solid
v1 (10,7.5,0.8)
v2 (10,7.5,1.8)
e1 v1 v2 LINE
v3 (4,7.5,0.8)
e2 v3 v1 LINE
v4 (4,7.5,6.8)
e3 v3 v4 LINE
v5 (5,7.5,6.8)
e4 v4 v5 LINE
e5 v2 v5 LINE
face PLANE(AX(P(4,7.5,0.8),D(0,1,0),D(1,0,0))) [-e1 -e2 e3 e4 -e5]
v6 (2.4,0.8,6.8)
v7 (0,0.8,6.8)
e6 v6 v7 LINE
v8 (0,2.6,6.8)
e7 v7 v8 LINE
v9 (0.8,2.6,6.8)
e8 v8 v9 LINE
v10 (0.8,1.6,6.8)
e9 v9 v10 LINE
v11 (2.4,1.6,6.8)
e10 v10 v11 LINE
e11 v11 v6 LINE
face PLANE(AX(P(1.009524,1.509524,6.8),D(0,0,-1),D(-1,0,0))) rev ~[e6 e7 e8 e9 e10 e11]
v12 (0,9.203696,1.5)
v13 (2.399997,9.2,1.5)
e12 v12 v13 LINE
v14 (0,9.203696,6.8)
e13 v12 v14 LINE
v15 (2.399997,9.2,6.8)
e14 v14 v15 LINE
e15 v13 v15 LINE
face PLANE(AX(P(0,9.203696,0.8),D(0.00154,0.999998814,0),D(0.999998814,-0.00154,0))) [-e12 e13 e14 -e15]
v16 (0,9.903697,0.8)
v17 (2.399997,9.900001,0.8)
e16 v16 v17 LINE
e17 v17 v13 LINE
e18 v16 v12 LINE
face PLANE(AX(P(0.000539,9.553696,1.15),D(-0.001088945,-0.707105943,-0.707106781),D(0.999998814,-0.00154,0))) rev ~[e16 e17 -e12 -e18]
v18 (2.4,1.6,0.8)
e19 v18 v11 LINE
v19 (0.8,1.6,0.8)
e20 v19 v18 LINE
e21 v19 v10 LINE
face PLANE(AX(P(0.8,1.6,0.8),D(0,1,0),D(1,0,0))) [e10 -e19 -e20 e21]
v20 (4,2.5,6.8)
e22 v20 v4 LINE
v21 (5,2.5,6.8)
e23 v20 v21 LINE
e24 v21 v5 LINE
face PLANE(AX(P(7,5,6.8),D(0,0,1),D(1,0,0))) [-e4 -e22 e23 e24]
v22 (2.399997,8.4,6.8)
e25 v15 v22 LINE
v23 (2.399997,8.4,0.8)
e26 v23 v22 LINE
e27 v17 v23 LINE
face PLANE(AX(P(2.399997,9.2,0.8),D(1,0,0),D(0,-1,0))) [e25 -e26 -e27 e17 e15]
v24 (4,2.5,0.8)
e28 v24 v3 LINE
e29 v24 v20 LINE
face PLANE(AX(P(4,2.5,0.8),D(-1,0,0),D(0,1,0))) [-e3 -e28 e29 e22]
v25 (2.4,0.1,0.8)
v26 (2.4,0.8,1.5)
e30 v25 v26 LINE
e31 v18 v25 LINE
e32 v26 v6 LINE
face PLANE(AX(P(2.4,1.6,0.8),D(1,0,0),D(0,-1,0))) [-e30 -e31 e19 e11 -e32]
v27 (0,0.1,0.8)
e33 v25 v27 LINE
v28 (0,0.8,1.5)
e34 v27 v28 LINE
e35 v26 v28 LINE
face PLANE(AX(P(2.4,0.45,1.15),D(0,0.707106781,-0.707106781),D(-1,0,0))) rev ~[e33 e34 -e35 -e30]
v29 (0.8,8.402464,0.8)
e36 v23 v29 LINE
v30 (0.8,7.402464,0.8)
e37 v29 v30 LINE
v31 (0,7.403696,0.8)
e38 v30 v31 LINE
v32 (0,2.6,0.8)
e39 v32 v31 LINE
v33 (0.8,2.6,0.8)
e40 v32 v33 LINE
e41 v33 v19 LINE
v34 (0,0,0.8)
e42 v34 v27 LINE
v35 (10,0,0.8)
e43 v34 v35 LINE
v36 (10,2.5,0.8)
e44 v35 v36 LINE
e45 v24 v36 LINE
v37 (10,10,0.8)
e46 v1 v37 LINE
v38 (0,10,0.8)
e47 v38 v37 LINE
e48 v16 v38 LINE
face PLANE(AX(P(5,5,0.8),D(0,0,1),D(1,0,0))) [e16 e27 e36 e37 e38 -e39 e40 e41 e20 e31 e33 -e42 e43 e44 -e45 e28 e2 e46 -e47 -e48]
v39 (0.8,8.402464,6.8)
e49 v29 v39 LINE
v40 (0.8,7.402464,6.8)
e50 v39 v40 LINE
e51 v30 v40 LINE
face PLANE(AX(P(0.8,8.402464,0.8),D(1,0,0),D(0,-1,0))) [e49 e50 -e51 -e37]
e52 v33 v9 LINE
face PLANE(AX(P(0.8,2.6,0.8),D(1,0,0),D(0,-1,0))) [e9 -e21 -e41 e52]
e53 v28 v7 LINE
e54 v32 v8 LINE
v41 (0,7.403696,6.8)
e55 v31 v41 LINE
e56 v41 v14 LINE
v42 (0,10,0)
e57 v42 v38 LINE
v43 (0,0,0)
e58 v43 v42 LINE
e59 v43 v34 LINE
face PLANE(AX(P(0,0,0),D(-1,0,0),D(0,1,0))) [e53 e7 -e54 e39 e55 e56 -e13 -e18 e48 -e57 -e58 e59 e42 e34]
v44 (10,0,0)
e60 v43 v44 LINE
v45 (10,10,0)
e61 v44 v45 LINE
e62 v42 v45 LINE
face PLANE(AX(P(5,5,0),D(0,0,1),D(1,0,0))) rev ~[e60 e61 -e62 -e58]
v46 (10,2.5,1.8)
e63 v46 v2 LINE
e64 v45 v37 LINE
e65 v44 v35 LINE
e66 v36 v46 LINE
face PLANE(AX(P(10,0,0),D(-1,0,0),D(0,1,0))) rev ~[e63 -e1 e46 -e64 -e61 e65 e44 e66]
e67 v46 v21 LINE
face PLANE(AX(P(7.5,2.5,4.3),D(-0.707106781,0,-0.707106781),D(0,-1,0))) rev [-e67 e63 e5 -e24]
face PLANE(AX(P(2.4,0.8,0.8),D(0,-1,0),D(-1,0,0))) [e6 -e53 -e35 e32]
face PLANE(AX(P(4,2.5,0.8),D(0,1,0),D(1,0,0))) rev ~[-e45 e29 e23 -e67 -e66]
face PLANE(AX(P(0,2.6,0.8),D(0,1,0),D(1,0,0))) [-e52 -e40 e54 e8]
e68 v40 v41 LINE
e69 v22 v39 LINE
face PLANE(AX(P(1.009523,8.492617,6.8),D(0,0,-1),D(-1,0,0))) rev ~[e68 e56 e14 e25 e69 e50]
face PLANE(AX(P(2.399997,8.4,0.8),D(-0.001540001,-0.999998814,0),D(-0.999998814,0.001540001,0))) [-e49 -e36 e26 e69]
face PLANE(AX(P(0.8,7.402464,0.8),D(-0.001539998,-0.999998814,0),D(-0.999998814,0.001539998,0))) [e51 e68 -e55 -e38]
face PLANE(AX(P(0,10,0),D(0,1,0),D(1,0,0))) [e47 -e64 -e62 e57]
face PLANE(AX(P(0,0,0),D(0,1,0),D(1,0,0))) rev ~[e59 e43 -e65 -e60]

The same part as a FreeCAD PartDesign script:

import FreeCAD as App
import Part
import Sketcher
Q = App.Units.Quantity


def edges_at(feature, points):
    """Names of the edges that pass closest to the given points."""
    edges = feature.Shape.Edges
    near = lambda p: min(range(len(edges)), key=lambda i: edges[i].distToShape(Part.Vertex(*p))[0])
    return sorted({f"Edge{near(p) + 1}" for p in points})


def add_polygon(sketch, points):
    """Adds a closed chain of lines whose ends are joined by coincident constraints."""
    first, n = sketch.GeometryCount, len(points)
    for a, b in zip(points, points[1:] + points[:1]):
        sketch.addGeometry(Part.LineSegment(App.Vector(*a, 0), App.Vector(*b, 0)), False)
    for i in range(n):
        sketch.addConstraint(Sketcher.Constraint("Coincident", first + i, 2, first + (i + 1) % n, 1))

doc = App.newDocument("Part")
params = doc.addObject("Spreadsheet::Sheet", "Params")
for row, (alias, value) in enumerate([
    ("sketch1_width", "10 mm"),
    ("pad1_length", "0.8 mm"),
    ("sketch2_width", "6 mm"),
    ("sketch2_height", "5 mm"),
    ("sketch2_height2", "1 mm"),
    ("sketch2_width2", "2.4 mm"),
    ("sketch2_width3", "1.6 mm"),
    ("pad2_length", "6 mm"),
    ("chamfer_size", "5 mm"),
    ("chamfer2_size", "0.7 mm"),
], start=1):
    params.set(f"A{row}", alias)
    params.set(f"B{row}", "=" + value)
    params.setAlias(f"B{row}", alias)

body = doc.addObject("PartDesign::Body", "Body")

# Sketch on XY plane
sketch1 = doc.addObject("Sketcher::SketchObject", "Sketch")
body.addObject(sketch1)
sketch1.AttachmentSupport = (doc.XY_Plane, [""])
sketch1.MapMode = "FlatFace"
add_polygon(sketch1, [(0, 10), (0, 0), (10, 0), (10, 10)])  # lines 0-3
sketch1.addConstraint(Sketcher.Constraint("Vertical", 0))
sketch1.addConstraint(Sketcher.Constraint("Horizontal", 1))
sketch1.addConstraint(Sketcher.Constraint("Vertical", 2))
sketch1.addConstraint(Sketcher.Constraint("Horizontal", 3))
sketch1.addConstraint(Sketcher.Constraint("Coincident", 0, 2, -1, 1))
sketch1.addConstraint(Sketcher.Constraint("Equal", 3, 0))
sketch1.addConstraint(Sketcher.Constraint("DistanceX", 1, 1, 1, 2, Q("10 mm")))
sketch1.setExpression("Constraints[10]", "Params.sketch1_width")
pad1 = doc.addObject("PartDesign::Pad", "Pad")
body.addObject(pad1)
pad1.Profile = sketch1
pad1.setExpression("Length", "Params.pad1_length")

# Sketch on XY plane
sketch2 = doc.addObject("Sketcher::SketchObject", "Sketch001")
body.addObject(sketch2)
sketch2.AttachmentSupport = (doc.XY_Plane, [""])
sketch2.MapMode = "FlatFace"
sketch2.AttachmentOffset = App.Placement(App.Vector(0, 0, 0.8), App.Rotation())
add_polygon(sketch2, [(4, 7.5), (4, 2.5), (10, 2.5), (10, 7.5)])  # lines 0-3
add_polygon(sketch2, [(0, 2.6), (0, 0.8), (2.4, 0.8), (2.4, 1.6), (0.8, 1.6), (0.8, 2.6)])  # lines 4-9
add_polygon(sketch2, [(0, 9.2), (0, 7.4), (0.8, 7.4), (0.8, 8.4), (2.4, 8.4), (2.4, 9.2)])  # lines 10-15
sketch2.addConstraint(Sketcher.Constraint("Vertical", 0))
sketch2.addConstraint(Sketcher.Constraint("Horizontal", 1))
sketch2.addConstraint(Sketcher.Constraint("Vertical", 2))
sketch2.addConstraint(Sketcher.Constraint("Horizontal", 3))
sketch2.addConstraint(Sketcher.Constraint("Vertical", 4))
sketch2.addConstraint(Sketcher.Constraint("Horizontal", 5))
sketch2.addConstraint(Sketcher.Constraint("Vertical", 6))
sketch2.addConstraint(Sketcher.Constraint("Horizontal", 7))
sketch2.addConstraint(Sketcher.Constraint("Vertical", 8))
sketch2.addConstraint(Sketcher.Constraint("Horizontal", 9))
sketch2.addConstraint(Sketcher.Constraint("Vertical", 10))
sketch2.addConstraint(Sketcher.Constraint("Vertical", 12))
sketch2.addConstraint(Sketcher.Constraint("Vertical", 14))
sketch2.addConstraint(Sketcher.Constraint("PointOnObject", 4, 2, -2))
sketch2.addConstraint(Sketcher.Constraint("PointOnObject", 10, 2, -2))
sketch2.addConstraint(Sketcher.Constraint("Parallel", 11, 13))
sketch2.addConstraint(Sketcher.Constraint("Parallel", 13, 15))
sketch2.addConstraint(Sketcher.Constraint("Vertical", 8, 2, 11, 2))
sketch2.addConstraint(Sketcher.Constraint("Equal", 9, 6))
sketch2.addConstraint(Sketcher.Constraint("Equal", 4, 10))
sketch2.addConstraint(Sketcher.Constraint("Equal", 8, 12))
sketch2.addConstraint(Sketcher.Constraint("DistanceX", 1, 1, 1, 2, Q("6 mm")))
sketch2.addConstraint(Sketcher.Constraint("DistanceY", 0, 2, 0, 1, Q("5 mm")))
sketch2.addConstraint(Sketcher.Constraint("DistanceY", 8, 1, 8, 2, Q("1 mm")))
sketch2.addConstraint(Sketcher.Constraint("DistanceX", 5, 1, 5, 2, Q("2.4 mm")))
sketch2.addConstraint(Sketcher.Constraint("DistanceX", 7, 2, 7, 1, Q("1.6 mm")))
sketch2.addConstraint(Sketcher.Constraint("DistanceX", -1, 1, 0, 2, Q("4 mm")))
sketch2.addConstraint(Sketcher.Constraint("Distance", 13, Q("1.599999 mm")))
sketch2.addConstraint(Sketcher.Constraint("DistanceY", -1, 1, 0, 2, Q("2.5 mm")))
sketch2.addConstraint(Sketcher.Constraint("DistanceY", -1, 1, 4, 2, Q("0.8 mm")))
sketch2.addConstraint(Sketcher.Constraint("DistanceY", -1, 1, 13, 2, Q("8.4 mm")))
sketch2.addConstraint(Sketcher.Constraint("DistanceY", 11, 2, 10, 2, Q("0.001232 mm")))
sketch2.setExpression("Constraints[37]", "Params.sketch2_width")
sketch2.setExpression("Constraints[38]", "Params.sketch2_height")
sketch2.setExpression("Constraints[39]", "Params.sketch2_height2")
sketch2.setExpression("Constraints[40]", "Params.sketch2_width2")
sketch2.setExpression("Constraints[41]", "Params.sketch2_width3")
pad2 = doc.addObject("PartDesign::Pad", "Pad001")
body.addObject(pad2)
pad2.Profile = sketch2
pad2.setExpression("Length", "Params.pad2_length")
doc.recompute()

chamfer = doc.addObject("PartDesign::Chamfer", "Chamfer")
body.addObject(chamfer)
chamfer.Base = (pad2, edges_at(pad2, [(10, 5, 6.8)]))
chamfer.setExpression("Size", "Params.chamfer_size")
doc.recompute()

chamfer2 = doc.addObject("PartDesign::Chamfer", "Chamfer001")
body.addObject(chamfer2)
chamfer2.Base = (chamfer, edges_at(chamfer, [(1.2, 0.8, 0.8), (1.2, 9.202, 0.8)]))
chamfer2.setExpression("Size", "Params.chamfer2_size")

doc.recompute()
